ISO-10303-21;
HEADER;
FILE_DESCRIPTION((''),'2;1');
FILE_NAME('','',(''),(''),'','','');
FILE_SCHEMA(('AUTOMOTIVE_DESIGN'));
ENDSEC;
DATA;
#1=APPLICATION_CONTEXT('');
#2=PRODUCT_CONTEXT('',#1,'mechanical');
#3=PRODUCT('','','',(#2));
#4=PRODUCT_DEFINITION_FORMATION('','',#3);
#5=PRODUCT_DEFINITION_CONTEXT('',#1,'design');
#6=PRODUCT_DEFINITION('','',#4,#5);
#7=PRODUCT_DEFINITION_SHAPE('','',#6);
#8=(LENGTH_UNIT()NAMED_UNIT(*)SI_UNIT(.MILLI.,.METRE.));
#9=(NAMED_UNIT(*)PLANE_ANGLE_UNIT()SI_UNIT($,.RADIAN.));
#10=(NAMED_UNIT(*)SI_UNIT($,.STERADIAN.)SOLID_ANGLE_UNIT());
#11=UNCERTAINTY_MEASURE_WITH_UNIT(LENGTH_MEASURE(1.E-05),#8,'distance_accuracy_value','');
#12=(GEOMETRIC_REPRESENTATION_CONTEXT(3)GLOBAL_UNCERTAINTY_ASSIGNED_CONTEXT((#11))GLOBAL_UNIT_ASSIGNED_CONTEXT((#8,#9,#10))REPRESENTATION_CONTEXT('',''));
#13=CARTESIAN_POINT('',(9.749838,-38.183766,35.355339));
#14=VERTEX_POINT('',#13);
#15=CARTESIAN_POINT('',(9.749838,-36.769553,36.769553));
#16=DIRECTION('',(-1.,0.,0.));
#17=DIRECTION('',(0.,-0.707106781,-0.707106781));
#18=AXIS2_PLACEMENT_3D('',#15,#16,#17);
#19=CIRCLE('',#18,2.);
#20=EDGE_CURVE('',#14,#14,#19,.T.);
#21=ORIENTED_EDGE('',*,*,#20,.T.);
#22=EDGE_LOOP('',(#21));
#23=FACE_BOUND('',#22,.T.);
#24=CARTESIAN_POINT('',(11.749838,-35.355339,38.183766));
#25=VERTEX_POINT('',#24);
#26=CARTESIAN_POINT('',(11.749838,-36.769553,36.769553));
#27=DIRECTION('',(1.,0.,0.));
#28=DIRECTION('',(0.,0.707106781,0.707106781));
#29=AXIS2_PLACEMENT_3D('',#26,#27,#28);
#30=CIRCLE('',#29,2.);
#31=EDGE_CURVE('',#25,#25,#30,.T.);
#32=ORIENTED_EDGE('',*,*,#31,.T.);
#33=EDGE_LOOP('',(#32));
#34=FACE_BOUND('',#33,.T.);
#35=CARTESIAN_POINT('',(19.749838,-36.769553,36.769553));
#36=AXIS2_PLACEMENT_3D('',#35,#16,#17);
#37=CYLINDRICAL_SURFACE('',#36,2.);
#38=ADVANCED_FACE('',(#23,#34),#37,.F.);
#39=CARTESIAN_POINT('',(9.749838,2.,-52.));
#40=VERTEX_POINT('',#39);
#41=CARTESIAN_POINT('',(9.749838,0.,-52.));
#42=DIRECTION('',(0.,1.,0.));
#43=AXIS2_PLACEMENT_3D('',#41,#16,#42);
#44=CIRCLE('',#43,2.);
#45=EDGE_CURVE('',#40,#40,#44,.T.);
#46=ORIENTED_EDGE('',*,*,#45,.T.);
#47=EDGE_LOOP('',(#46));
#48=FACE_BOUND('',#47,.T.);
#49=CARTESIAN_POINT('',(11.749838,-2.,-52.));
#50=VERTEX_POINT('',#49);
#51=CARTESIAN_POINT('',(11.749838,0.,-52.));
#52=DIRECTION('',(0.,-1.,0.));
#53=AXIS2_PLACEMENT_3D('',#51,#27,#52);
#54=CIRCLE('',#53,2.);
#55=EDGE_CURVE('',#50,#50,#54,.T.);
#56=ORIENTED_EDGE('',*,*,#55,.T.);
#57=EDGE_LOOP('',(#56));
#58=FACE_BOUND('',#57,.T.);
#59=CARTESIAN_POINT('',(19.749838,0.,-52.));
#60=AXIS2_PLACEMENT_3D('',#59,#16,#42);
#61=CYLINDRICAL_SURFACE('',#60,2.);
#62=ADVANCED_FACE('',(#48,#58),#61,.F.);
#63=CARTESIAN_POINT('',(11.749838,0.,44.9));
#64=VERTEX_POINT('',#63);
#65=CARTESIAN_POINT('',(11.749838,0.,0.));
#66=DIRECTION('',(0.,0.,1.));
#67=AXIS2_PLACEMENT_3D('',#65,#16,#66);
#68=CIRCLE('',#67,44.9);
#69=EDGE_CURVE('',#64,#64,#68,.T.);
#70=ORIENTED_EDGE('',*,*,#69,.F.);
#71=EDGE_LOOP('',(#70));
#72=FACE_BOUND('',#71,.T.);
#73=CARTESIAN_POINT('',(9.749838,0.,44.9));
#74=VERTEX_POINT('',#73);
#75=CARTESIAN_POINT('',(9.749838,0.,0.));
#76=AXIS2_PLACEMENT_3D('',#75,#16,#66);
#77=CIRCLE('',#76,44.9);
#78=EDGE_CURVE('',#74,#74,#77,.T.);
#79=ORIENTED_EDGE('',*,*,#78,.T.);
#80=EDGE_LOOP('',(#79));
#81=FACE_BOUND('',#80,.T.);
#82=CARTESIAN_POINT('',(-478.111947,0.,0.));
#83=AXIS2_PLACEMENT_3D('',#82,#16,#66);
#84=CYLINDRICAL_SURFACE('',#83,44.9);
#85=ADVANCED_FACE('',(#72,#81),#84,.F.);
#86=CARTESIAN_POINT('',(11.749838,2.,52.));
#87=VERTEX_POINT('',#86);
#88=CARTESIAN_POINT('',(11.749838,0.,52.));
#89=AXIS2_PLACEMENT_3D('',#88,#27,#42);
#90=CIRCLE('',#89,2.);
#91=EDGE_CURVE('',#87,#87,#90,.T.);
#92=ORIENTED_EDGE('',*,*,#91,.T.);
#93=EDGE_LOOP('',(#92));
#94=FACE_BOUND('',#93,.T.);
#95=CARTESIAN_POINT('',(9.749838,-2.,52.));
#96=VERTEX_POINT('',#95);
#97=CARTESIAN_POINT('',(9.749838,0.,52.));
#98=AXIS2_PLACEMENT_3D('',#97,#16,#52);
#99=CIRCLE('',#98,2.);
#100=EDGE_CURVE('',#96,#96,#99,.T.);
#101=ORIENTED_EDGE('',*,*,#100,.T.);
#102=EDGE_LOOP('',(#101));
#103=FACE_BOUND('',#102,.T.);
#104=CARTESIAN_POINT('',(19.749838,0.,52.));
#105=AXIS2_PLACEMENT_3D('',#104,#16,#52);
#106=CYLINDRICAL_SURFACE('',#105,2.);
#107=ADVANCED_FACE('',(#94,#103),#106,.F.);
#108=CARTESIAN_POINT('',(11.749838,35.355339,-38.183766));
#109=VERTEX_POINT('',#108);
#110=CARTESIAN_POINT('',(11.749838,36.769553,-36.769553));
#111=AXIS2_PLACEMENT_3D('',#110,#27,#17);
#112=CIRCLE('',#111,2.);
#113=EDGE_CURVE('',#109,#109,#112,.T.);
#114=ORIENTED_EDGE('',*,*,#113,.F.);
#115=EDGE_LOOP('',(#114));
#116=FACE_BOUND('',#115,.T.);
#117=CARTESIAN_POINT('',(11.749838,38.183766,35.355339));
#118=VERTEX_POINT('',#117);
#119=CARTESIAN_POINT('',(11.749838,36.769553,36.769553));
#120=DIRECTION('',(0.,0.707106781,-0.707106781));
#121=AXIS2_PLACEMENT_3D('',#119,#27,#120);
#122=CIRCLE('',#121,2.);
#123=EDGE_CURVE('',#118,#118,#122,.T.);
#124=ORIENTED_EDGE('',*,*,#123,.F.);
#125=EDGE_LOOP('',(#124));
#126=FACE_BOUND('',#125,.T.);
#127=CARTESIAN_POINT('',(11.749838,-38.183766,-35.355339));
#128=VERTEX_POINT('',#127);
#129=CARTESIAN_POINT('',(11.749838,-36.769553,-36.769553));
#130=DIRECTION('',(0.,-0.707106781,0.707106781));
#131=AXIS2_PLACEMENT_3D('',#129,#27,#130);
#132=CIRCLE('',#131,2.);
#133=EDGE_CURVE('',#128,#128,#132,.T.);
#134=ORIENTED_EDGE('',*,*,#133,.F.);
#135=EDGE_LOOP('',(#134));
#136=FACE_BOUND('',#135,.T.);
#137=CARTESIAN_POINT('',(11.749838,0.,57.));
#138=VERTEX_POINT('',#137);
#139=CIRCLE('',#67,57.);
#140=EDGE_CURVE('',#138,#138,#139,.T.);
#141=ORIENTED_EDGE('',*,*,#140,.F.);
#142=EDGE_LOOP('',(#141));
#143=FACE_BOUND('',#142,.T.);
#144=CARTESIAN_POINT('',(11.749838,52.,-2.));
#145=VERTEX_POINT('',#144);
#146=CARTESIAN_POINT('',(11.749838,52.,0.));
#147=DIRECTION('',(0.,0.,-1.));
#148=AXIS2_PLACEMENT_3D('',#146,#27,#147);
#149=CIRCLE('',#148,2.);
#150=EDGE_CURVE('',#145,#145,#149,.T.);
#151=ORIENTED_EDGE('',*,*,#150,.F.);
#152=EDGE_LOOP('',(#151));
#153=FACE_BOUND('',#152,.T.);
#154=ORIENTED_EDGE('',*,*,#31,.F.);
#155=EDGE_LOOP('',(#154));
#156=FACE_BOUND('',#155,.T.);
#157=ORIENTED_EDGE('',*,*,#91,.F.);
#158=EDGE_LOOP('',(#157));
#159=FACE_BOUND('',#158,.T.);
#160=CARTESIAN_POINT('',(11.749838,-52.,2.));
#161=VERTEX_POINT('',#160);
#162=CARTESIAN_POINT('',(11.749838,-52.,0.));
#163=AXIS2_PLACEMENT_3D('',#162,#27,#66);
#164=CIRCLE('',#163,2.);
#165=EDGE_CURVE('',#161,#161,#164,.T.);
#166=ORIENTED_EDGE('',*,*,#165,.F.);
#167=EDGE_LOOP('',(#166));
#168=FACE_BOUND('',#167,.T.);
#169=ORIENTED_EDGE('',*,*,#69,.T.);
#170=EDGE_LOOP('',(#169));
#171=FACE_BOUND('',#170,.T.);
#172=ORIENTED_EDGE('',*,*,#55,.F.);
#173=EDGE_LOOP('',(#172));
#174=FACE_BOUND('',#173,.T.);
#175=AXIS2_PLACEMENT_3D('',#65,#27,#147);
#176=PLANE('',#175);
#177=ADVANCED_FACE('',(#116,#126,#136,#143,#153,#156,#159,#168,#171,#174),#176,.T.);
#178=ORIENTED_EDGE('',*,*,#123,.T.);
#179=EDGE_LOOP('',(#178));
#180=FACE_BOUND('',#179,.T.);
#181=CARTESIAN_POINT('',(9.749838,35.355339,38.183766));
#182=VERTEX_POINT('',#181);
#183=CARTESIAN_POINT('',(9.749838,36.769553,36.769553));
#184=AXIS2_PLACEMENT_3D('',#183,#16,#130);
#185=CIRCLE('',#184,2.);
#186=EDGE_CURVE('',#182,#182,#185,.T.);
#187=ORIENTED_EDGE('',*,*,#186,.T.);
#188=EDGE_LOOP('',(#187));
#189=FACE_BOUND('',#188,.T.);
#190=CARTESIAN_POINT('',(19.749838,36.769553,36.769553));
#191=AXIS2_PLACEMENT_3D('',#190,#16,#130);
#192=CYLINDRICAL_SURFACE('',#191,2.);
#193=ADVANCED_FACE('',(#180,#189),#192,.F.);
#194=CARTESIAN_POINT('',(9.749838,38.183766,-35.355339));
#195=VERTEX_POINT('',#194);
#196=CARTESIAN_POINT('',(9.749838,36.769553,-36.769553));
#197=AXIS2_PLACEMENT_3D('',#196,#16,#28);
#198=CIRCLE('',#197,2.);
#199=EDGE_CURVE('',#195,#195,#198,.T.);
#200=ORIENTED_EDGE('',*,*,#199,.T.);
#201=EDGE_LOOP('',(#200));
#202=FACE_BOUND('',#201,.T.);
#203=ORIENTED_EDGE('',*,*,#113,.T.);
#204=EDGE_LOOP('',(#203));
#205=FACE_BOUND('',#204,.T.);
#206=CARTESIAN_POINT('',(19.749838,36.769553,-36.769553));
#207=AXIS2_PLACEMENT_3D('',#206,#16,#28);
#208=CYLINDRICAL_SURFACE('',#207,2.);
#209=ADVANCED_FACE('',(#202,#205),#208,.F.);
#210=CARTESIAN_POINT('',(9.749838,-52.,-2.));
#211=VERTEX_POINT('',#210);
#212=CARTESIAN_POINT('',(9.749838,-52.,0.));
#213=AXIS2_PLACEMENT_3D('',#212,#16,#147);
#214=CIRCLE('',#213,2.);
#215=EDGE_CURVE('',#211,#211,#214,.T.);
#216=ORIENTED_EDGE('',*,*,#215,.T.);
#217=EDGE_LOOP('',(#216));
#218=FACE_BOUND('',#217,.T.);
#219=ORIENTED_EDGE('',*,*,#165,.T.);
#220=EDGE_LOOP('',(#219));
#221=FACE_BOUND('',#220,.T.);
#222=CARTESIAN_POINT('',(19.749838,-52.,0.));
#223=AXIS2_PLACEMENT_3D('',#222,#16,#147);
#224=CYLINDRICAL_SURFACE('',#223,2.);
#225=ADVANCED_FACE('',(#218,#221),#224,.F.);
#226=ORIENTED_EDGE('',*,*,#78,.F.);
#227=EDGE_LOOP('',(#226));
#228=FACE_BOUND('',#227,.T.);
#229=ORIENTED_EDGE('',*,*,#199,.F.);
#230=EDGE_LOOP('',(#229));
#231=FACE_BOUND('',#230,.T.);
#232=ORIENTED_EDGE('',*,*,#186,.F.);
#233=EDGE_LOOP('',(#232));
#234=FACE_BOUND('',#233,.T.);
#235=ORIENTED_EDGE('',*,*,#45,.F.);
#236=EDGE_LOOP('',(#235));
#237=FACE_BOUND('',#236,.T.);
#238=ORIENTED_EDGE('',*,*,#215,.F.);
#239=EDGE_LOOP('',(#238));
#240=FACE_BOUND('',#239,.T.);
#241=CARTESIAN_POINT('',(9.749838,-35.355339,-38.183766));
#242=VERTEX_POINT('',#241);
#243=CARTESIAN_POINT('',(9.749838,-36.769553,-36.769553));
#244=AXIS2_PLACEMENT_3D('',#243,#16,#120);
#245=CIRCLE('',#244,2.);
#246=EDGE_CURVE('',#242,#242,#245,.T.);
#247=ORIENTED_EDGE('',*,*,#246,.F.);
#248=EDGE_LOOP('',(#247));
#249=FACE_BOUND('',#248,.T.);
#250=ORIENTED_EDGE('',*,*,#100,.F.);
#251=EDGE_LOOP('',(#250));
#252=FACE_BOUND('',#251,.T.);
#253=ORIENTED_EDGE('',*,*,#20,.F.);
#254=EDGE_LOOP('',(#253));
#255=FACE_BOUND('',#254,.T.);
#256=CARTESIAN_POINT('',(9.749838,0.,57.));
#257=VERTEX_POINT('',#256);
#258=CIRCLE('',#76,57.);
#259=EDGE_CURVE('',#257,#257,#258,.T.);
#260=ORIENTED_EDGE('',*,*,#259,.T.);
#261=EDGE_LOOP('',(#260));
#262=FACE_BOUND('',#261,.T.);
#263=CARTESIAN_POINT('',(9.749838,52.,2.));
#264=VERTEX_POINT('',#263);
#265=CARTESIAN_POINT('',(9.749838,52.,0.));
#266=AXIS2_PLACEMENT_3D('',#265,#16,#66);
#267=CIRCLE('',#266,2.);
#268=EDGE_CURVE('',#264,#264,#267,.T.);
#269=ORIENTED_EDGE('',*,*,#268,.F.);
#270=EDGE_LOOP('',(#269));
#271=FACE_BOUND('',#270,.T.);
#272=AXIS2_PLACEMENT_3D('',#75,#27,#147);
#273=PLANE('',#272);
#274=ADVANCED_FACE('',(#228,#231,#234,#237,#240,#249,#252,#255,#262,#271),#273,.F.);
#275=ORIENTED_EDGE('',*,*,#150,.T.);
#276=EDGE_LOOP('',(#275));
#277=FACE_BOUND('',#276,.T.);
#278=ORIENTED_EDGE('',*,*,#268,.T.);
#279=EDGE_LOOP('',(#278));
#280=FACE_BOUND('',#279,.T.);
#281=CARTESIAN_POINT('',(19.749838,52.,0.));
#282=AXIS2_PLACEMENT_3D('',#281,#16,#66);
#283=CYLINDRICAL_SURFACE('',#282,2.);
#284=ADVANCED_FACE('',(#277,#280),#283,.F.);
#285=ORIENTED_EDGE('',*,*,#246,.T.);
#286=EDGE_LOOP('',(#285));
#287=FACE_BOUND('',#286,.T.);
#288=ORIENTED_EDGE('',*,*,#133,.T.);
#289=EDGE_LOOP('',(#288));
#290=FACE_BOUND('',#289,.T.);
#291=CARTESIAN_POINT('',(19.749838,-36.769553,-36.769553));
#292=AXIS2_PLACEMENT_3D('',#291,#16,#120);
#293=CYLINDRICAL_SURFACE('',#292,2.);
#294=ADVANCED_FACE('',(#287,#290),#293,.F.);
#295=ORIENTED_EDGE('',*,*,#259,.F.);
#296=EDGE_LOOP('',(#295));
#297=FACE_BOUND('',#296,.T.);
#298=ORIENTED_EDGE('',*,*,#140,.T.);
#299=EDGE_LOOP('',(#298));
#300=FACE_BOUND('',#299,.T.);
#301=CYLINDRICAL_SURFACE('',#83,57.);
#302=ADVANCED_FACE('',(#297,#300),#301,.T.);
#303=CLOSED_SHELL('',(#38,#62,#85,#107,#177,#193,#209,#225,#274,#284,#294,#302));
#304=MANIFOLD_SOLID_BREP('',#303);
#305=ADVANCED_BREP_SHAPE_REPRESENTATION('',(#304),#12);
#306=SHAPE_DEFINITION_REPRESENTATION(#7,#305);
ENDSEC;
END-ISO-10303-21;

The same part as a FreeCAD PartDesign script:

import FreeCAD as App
import Part
import Sketcher

V = App.Vector

doc = App.newDocument("Part")
params = doc.addObject("Spreadsheet::Sheet", "Params")
for row, (alias, value) in enumerate([
    ("sketch1_width", "2 mm"),
    ("sketch1_height", "12.1 mm"),
    ("revolution_angle", "360 deg"),
    ("sketch2_diameter", "4 mm"),
    ("pocket1_length", "10 mm"),
], start=1):
    params.set(f"A{row}", alias)
    params.set(f"B{row}", "=" + value)
    params.setAlias(f"B{row}", alias)

body = doc.addObject("PartDesign::Body", "Body")

# Sketch on XY plane
sketch1 = body.newObject("Sketcher::SketchObject", "Sketch")
sketch1.AttachmentSupport = (doc.getObject("XY_Plane"), [""])
sketch1.MapMode = "FlatFace"
sketch1.addGeometry(Part.LineSegment(V(9.7, 57, 0), V(9.7, 44.9, 0)), False)
sketch1.addGeometry(Part.LineSegment(V(9.7, 44.9, 0), V(11.7, 44.9, 0)), False)
sketch1.addGeometry(Part.LineSegment(V(11.7, 44.9, 0), V(11.7, 57, 0)), False)
sketch1.addGeometry(Part.LineSegment(V(11.7, 57, 0), V(9.7, 57, 0)), False)
sketch1.addConstraint(Sketcher.Constraint("Coincident", 0, 2, 1, 1))
sketch1.addConstraint(Sketcher.Constraint("Coincident", 1, 2, 2, 1))
sketch1.addConstraint(Sketcher.Constraint("Coincident", 2, 2, 3, 1))
sketch1.addConstraint(Sketcher.Constraint("Coincident", 3, 2, 0, 1))
sketch1.addConstraint(Sketcher.Constraint("Vertical", 0))
sketch1.addConstraint(Sketcher.Constraint("Horizontal", 1))
sketch1.addConstraint(Sketcher.Constraint("Vertical", 2))
sketch1.addConstraint(Sketcher.Constraint("Horizontal", 3))
sketch1.addConstraint(Sketcher.Constraint("DistanceX", 1, 1, 1, 2, 2.0))
sketch1.addConstraint(Sketcher.Constraint("DistanceY", 0, 2, 0, 1, 12.1))
sketch1.addConstraint(Sketcher.Constraint("DistanceY", -1, 1, 2, 2, 57.0))
sketch1.addConstraint(Sketcher.Constraint("DistanceX", -1, 1, 0, 2, 9.749838))
sketch1.setExpression("Constraints[8]", "Params.sketch1_width")
sketch1.setExpression("Constraints[9]", "Params.sketch1_height")
revolution = body.newObject("PartDesign::Revolution", "Revolution")
revolution.Profile = sketch1
revolution.ReferenceAxis = (sketch1, ["H_Axis"])
revolution.setExpression("Angle", "Params.revolution_angle")

# Sketch on YZ plane
sketch2 = body.newObject("Sketcher::SketchObject", "Sketch001")
sketch2.AttachmentSupport = (doc.getObject("YZ_Plane"), [""])
sketch2.MapMode = "FlatFace"
sketch2.AttachmentOffset = App.Placement(V(0, 0, 9.749838), App.Rotation())
sketch2.addGeometry(Part.Circle(V(52, 0, 0), V(0, 0, 1), 2), False)
sketch2.addConstraint(Sketcher.Constraint("PointOnObject", 0, 3, -1))
sketch2.addConstraint(Sketcher.Constraint("Diameter", 0, 4.0))
sketch2.addConstraint(Sketcher.Constraint("DistanceX", -1, 1, 0, 3, 52.0))
sketch2.setExpression("Constraints[1]", "Params.sketch2_diameter")
pocket1 = body.newObject("PartDesign::Pocket", "Pocket")
pocket1.Profile = sketch2
pocket1.setExpression("Length", "Params.pocket1_length")
pocket1.Reversed = True
doc.recompute()

polarpattern = body.newObject("PartDesign::PolarPattern", "PolarPattern")
polarpattern.Originals = [pocket1]
polarpattern.Axis = (doc.getObject("X_Axis"), [""])
polarpattern.Angle = 360
polarpattern.Occurrences = 8
body.Tip = polarpattern

doc.recompute()
